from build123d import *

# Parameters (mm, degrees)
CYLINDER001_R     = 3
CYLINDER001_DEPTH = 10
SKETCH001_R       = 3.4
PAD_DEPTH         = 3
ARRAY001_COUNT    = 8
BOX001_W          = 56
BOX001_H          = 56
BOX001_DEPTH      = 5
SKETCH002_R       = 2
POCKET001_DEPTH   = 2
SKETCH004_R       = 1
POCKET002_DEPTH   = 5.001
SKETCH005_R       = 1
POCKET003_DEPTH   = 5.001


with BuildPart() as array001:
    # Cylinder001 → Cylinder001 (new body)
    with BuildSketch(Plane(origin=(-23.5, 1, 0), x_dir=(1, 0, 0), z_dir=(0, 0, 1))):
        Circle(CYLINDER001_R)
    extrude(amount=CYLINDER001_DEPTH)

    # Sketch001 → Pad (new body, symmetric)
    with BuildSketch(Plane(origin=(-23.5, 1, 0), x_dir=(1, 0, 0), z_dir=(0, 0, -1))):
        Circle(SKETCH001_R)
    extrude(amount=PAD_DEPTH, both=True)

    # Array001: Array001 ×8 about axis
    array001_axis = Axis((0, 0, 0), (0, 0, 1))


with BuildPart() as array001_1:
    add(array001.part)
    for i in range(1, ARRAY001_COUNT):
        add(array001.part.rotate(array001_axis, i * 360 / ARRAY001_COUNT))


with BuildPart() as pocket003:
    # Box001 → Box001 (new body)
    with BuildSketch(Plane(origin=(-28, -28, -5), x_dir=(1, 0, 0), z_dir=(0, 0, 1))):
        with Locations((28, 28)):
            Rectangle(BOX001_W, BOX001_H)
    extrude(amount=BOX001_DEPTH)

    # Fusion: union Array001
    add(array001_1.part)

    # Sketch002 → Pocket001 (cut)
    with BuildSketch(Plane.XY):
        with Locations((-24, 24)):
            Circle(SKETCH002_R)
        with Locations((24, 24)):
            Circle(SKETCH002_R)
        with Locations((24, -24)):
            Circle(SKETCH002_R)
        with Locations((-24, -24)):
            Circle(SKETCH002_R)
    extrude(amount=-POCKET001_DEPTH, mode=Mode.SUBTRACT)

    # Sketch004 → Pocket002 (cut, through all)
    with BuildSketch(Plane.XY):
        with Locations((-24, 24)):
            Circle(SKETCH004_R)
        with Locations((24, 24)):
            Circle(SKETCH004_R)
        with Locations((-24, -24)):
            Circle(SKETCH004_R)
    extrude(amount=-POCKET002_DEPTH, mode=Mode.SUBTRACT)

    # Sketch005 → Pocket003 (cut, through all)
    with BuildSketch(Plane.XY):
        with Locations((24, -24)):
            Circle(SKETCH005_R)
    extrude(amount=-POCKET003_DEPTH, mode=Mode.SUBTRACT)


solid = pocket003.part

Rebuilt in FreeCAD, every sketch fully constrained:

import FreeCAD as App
import Part
import Sketcher
Q = App.Units.Quantity

doc = App.newDocument("Part")
body = doc.addObject("PartDesign::Body", "Body")

sketch1 = body.newObject("Sketcher::SketchObject", "Sketch")
sketch1.AttachmentSupport = (doc.getObject("XY_Plane"), [""])
sketch1.MapMode = "FlatFace"
sketch1.addGeometry(Part.Circle(App.Vector(-23.5, 1, 0), App.Vector(0, 0, 1), 3), False)
sketch1.addConstraint(Sketcher.Constraint("Diameter", 0, Q("6 mm")))
sketch1.addConstraint(Sketcher.Constraint("DistanceY", -1, 1, 0, 3, Q("1 mm")))
sketch1.addConstraint(Sketcher.Constraint("DistanceX", 0, 3, -1, 1, Q("23.5 mm")))
pad1 = body.newObject("PartDesign::Pad", "Pad")
pad1.Profile = sketch1
pad1.Length = 10

sketch2 = body.newObject("Sketcher::SketchObject", "Sketch001")
sketch2.AttachmentSupport = (doc.getObject("XY_Plane"), [""])
sketch2.MapMode = "FlatFace"
sketch2.addGeometry(Part.Circle(App.Vector(-23.5, 1, 0), App.Vector(0, 0, 1), 3.4), False)
sketch2.addConstraint(Sketcher.Constraint("Diameter", 0, Q("6.8 mm")))
sketch2.addConstraint(Sketcher.Constraint("DistanceY", -1, 1, 0, 3, Q("1 mm")))
sketch2.addConstraint(Sketcher.Constraint("DistanceX", 0, 3, -1, 1, Q("23.5 mm")))
pad2 = body.newObject("PartDesign::Pad", "Pad001")
pad2.Profile = sketch2
pad2.Length = 6
pad2.Midplane = True
body2 = doc.addObject("PartDesign::Body", "Body001")
body2.AllowCompound = True
doc.recompute()

body2.BaseFeature = body
doc.recompute()

body3 = doc.addObject("PartDesign::Body", "Body002")
body3.BaseFeature = body
body3.Placement = App.Placement(App.Vector(0, 0, 0), App.Rotation(App.Vector(0, 0, 1), 45))
boolean = body2.newObject("PartDesign::Boolean", "Boolean")
boolean.Type = "Fuse"
boolean.addObjects([body3])
doc.recompute()

body4 = doc.addObject("PartDesign::Body", "Body003")
body4.BaseFeature = body
body4.Placement = App.Placement(App.Vector(0, 0, 0), App.Rotation(App.Vector(0, 0, 1), 90))
boolean2 = body2.newObject("PartDesign::Boolean", "Boolean001")
boolean2.Type = "Fuse"
boolean2.addObjects([body4])
doc.recompute()

body5 = doc.addObject("PartDesign::Body", "Body004")
body5.BaseFeature = body
body5.Placement = App.Placement(App.Vector(0, 0, 0), App.Rotation(App.Vector(0, 0, 1), 135))
boolean3 = body2.newObject("PartDesign::Boolean", "Boolean002")
boolean3.Type = "Fuse"
boolean3.addObjects([body5])
doc.recompute()

body6 = doc.addObject("PartDesign::Body", "Body005")
body6.BaseFeature = body
body6.Placement = App.Placement(App.Vector(0, 0, 0), App.Rotation(App.Vector(0, 0, 1), 180))
boolean4 = body2.newObject("PartDesign::Boolean", "Boolean003")
boolean4.Type = "Fuse"
boolean4.addObjects([body6])
doc.recompute()

body7 = doc.addObject("PartDesign::Body", "Body006")
body7.BaseFeature = body
body7.Placement = App.Placement(App.Vector(0, 0, 0), App.Rotation(App.Vector(0, 0, 1), 225))
boolean5 = body2.newObject("PartDesign::Boolean", "Boolean004")
boolean5.Type = "Fuse"
boolean5.addObjects([body7])
doc.recompute()

body8 = doc.addObject("PartDesign::Body", "Body007")
body8.BaseFeature = body
body8.Placement = App.Placement(App.Vector(0, 0, 0), App.Rotation(App.Vector(0, 0, 1), 270))
boolean6 = body2.newObject("PartDesign::Boolean", "Boolean005")
boolean6.Type = "Fuse"
boolean6.addObjects([body8])
doc.recompute()

body.Placement = App.Placement(App.Vector(0, 0, 0), App.Rotation(App.Vector(0, 0, 1), 315))
boolean7 = body2.newObject("PartDesign::Boolean", "Boolean006")
boolean7.Type = "Fuse"
boolean7.addObjects([body])
body9 = doc.addObject("PartDesign::Body", "Body008")

sketch3 = body9.newObject("Sketcher::SketchObject", "Sketch002")
sketch3.AttachmentSupport = (doc.getObject("XY_Plane008"), [""])
sketch3.MapMode = "FlatFace"
sketch3.AttachmentOffset = App.Placement(App.Vector(0, 0, -5), App.Rotation())
sketch3.addGeometry(Part.LineSegment(App.Vector(-28, 28, 0), App.Vector(-28, -28, 0)), False)
sketch3.addGeometry(Part.LineSegment(App.Vector(-28, -28, 0), App.Vector(28, -28, 0)), False)
sketch3.addGeometry(Part.LineSegment(App.Vector(28, -28, 0), App.Vector(28, 28, 0)), False)
sketch3.addGeometry(Part.LineSegment(App.Vector(28, 28, 0), App.Vector(-28, 28, 0)), False)
sketch3.addConstraint(Sketcher.Constraint("Coincident", 0, 2, 1, 1))
sketch3.addConstraint(Sketcher.Constraint("Coincident", 1, 2, 2, 1))
sketch3.addConstraint(Sketcher.Constraint("Coincident", 2, 2, 3, 1))
sketch3.addConstraint(Sketcher.Constraint("Coincident", 3, 2, 0, 1))
sketch3.addConstraint(Sketcher.Constraint("Vertical", 0))
sketch3.addConstraint(Sketcher.Constraint("Horizontal", 1))
sketch3.addConstraint(Sketcher.Constraint("Vertical", 2))
sketch3.addConstraint(Sketcher.Constraint("Horizontal", 3))
sketch3.addConstraint(Sketcher.Constraint("Symmetric", 0, 2, 2, 2, -1, 1))
sketch3.addConstraint(Sketcher.Constraint("Equal", 3, 0))
sketch3.addConstraint(Sketcher.Constraint("DistanceX", 1, 1, 1, 2, Q("56 mm")))
pad3 = body9.newObject("PartDesign::Pad", "Pad002")
pad3.Profile = sketch3
pad3.Length = 5
doc.recompute()

boolean8 = body9.newObject("PartDesign::Boolean", "Boolean007")
boolean8.Type = "Fuse"
boolean8.addObjects([body2])

sketch4 = body9.newObject("Sketcher::SketchObject", "Sketch003")
sketch4.AttachmentSupport = (doc.getObject("XY_Plane008"), [""])
sketch4.MapMode = "FlatFace"
sketch4.addGeometry(Part.Circle(App.Vector(-24, 24, 0), App.Vector(0, 0, 1), 2), False)
sketch4.addGeometry(Part.Circle(App.Vector(24, 24, 0), App.Vector(0, 0, 1), 2), False)
sketch4.addGeometry(Part.Circle(App.Vector(24, -24, 0), App.Vector(0, 0, 1), 2), False)
sketch4.addGeometry(Part.Circle(App.Vector(-24, -24, 0), App.Vector(0, 0, 1), 2), False)
sketch4.addConstraint(Sketcher.Constraint("Equal", 0, 1))
sketch4.addConstraint(Sketcher.Constraint("Equal", 1, 2))
sketch4.addConstraint(Sketcher.Constraint("Equal", 2, 3))
sketch4.addConstraint(Sketcher.Constraint("Symmetric", 0, 3, 2, 3, -1, 1))
sketch4.addConstraint(Sketcher.Constraint("Symmetric", 1, 3, 3, 3, -1, 1))
sketch4.addConstraint(Sketcher.Constraint("Symmetric", 0, 3, 1, 3, -2))
sketch4.addConstraint(Sketcher.Constraint("Diameter", 0, Q("4 mm")))
sketch4.addConstraint(Sketcher.Constraint("DistanceX", 0, 3, -1, 1, Q("24 mm")))
sketch4.addConstraint(Sketcher.Constraint("DistanceY", -1, 1, 0, 3, Q("24 mm")))
pocket1 = body9.newObject("PartDesign::Pocket", "Pocket")
pocket1.Profile = sketch4
pocket1.Length = 2

sketch5 = body9.newObject("Sketcher::SketchObject", "Sketch004")
sketch5.AttachmentSupport = (doc.getObject("XY_Plane008"), [""])
sketch5.MapMode = "FlatFace"
sketch5.addGeometry(Part.Circle(App.Vector(-24, 24, 0), App.Vector(0, 0, 1), 1), False)
sketch5.addGeometry(Part.Circle(App.Vector(24, 24, 0), App.Vector(0, 0, 1), 1), False)
sketch5.addGeometry(Part.Circle(App.Vector(-24, -24, 0), App.Vector(0, 0, 1), 1), False)
sketch5.addConstraint(Sketcher.Constraint("Equal", 0, 1))
sketch5.addConstraint(Sketcher.Constraint("Equal", 1, 2))
sketch5.addConstraint(Sketcher.Constraint("Symmetric", 1, 3, 2, 3, -1, 1))
sketch5.addConstraint(Sketcher.Constraint("Symmetric", 0, 3, 1, 3, -2))
sketch5.addConstraint(Sketcher.Constraint("Diameter", 0, Q("2 mm")))
sketch5.addConstraint(Sketcher.Constraint("DistanceX", 0, 3, -1, 1, Q("24 mm")))
sketch5.addConstraint(Sketcher.Constraint("DistanceY", -1, 1, 0, 3, Q("24 mm")))
pocket2 = body9.newObject("PartDesign::Pocket", "Pocket001")
pocket2.Profile = sketch5
pocket2.Type = "ThroughAll"

sketch6 = body9.newObject("Sketcher::SketchObject", "Sketch005")
sketch6.AttachmentSupport = (doc.getObject("XY_Plane008"), [""])
sketch6.MapMode = "FlatFace"
sketch6.addGeometry(Part.Circle(App.Vector(24, -24, 0), App.Vector(0, 0, 1), 1), False)
sketch6.addConstraint(Sketcher.Constraint("Diameter", 0, Q("2 mm")))
sketch6.addConstraint(Sketcher.Constraint("DistanceX", -1, 1, 0, 3, Q("24 mm")))
sketch6.addConstraint(Sketcher.Constraint("DistanceY", 0, 3, -1, 1, Q("24 mm")))
pocket3 = body9.newObject("PartDesign::Pocket", "Pocket002")
pocket3.Profile = sketch6
pocket3.Type = "ThroughAll"

doc.recompute()
